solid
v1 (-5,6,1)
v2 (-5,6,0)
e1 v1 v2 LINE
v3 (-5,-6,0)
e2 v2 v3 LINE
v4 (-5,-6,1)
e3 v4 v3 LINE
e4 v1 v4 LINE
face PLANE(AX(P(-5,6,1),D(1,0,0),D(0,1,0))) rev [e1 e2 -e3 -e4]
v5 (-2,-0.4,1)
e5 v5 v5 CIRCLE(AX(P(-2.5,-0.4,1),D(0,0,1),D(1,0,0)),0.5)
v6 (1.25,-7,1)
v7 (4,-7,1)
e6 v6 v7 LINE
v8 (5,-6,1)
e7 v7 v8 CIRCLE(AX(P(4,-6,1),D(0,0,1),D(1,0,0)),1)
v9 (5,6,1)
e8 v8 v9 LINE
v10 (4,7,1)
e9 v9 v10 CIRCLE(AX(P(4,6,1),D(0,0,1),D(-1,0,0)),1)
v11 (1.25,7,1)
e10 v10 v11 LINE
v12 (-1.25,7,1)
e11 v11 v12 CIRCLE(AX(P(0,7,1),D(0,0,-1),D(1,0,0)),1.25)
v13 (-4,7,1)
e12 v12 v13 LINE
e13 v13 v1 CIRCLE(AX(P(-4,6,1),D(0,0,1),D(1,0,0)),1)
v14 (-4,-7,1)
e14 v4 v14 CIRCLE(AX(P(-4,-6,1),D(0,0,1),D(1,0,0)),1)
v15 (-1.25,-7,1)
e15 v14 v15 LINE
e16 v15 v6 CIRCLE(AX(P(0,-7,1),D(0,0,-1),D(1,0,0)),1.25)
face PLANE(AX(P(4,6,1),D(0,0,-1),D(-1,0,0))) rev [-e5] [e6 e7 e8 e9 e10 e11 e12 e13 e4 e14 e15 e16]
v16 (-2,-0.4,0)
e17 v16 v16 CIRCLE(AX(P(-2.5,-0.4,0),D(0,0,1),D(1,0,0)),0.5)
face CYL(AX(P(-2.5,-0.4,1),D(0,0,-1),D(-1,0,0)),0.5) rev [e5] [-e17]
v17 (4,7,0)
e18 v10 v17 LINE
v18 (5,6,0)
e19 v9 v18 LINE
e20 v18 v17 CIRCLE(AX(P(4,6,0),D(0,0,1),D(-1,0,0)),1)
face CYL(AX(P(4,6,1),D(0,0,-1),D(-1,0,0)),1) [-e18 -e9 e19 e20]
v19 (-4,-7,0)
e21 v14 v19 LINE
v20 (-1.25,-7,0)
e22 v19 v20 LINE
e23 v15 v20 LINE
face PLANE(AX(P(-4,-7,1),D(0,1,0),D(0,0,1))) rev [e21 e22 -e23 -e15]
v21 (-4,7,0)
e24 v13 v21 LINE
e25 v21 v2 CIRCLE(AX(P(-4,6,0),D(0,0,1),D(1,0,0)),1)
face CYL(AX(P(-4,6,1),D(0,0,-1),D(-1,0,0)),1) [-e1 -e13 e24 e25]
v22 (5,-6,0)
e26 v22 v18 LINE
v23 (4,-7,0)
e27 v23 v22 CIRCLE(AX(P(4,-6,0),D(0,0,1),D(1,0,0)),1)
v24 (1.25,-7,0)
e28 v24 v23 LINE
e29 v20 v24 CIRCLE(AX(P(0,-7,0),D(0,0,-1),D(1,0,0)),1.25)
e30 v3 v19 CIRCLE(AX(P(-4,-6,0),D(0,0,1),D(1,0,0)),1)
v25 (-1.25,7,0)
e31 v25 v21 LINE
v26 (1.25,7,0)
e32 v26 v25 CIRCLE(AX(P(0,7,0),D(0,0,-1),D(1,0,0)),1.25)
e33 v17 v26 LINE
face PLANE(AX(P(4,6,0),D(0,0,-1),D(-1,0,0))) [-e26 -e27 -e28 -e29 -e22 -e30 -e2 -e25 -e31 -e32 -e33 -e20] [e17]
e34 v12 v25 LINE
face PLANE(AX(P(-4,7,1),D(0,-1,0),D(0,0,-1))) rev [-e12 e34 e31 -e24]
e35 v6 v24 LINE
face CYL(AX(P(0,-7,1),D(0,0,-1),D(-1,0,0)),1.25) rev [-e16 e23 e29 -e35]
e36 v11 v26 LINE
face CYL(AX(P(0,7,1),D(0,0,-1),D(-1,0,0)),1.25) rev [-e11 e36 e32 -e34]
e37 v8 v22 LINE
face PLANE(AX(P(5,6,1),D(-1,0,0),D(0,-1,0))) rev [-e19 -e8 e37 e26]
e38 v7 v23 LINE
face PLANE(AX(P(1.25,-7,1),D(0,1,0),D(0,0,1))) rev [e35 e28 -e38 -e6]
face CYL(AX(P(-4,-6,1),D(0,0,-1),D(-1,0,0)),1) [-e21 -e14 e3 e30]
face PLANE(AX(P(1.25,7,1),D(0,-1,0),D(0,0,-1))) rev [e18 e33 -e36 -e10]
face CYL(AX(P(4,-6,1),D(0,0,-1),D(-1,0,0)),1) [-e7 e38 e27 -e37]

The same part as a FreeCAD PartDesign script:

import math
import FreeCAD as App
import Part
import Sketcher

doc = App.newDocument("Part")
params = doc.addObject("Spreadsheet::Sheet", "Params")
for row, (alias, value) in enumerate([
    ("sketch1_diameter", "1 mm"),
    ("sketch1_radius", "1 mm"),
    ("sketch1_height", "12 mm"),
    ("sketch1_radius2", "1.25 mm"),
    ("pad1_length", "1 mm"),
], start=1):
    params.set(f"A{row}", alias)
    params.set(f"B{row}", "=" + value)
    params.setAlias(f"B{row}", alias)

body = doc.addObject("PartDesign::Body", "Body")

# Sketch on XY plane
sketch1 = body.newObject("Sketcher::SketchObject", "Sketch")
sketch1.AttachmentSupport = (doc.getObject("XY_Plane"), [""])
sketch1.MapMode = "FlatFace"
sketch1.addGeometry([
    Part.LineSegment(App.Vector(4, 7, 0), App.Vector(1.2, 7, 0)),  # 0
    Part.ArcOfCircle(Part.Circle(App.Vector(0, 7, 0), App.Vector(0, 0, 1), 1.2), math.radians(180), math.radians(360)),  # 1
    Part.LineSegment(App.Vector(-1.2, 7, 0), App.Vector(-4, 7, 0)),  # 2
    Part.ArcOfCircle(Part.Circle(App.Vector(-4, 6, 0), App.Vector(0, 0, 1), 1), math.radians(90), math.radians(180)),  # 3
    Part.LineSegment(App.Vector(-5, 6, 0), App.Vector(-5, -6, 0)),  # 4
    Part.ArcOfCircle(Part.Circle(App.Vector(-4, -6, 0), App.Vector(0, 0, 1), 1), math.radians(-180), math.radians(-90)),  # 5
    Part.LineSegment(App.Vector(-4, -7, 0), App.Vector(-1.2, -7, 0)),  # 6
    Part.ArcOfCircle(Part.Circle(App.Vector(0, -7, 0), App.Vector(0, 0, 1), 1.2), math.radians(0), math.radians(180)),  # 7
    Part.LineSegment(App.Vector(1.2, -7, 0), App.Vector(4, -7, 0)),  # 8
    Part.ArcOfCircle(Part.Circle(App.Vector(4, -6, 0), App.Vector(0, 0, 1), 1), math.radians(-90), math.radians(0)),  # 9
    Part.LineSegment(App.Vector(5, -6, 0), App.Vector(5, 6, 0)),  # 10
    Part.ArcOfCircle(Part.Circle(App.Vector(4, 6, 0), App.Vector(0, 0, 1), 1), math.radians(0), math.radians(90)),  # 11
    Part.Circle(App.Vector(-2.5, -0.4, 0), App.Vector(0, 0, 1), 0.5),  # 12
], False)
sketch1.addConstraint([
    Sketcher.Constraint("Coincident", 0, 2, 1, 2),
    Sketcher.Constraint("Coincident", 1, 1, 2, 1),
    Sketcher.Constraint("Tangent", 2, 2, 3, 1),
    Sketcher.Constraint("Tangent", 3, 2, 4, 1),
    Sketcher.Constraint("Tangent", 4, 2, 5, 1),
    Sketcher.Constraint("Tangent", 5, 2, 6, 1),
    Sketcher.Constraint("Coincident", 6, 2, 7, 2),
    Sketcher.Constraint("Coincident", 7, 1, 8, 1),
    Sketcher.Constraint("Tangent", 8, 2, 9, 1),
    Sketcher.Constraint("Tangent", 9, 2, 10, 1),
    Sketcher.Constraint("Tangent", 10, 2, 11, 1),
    Sketcher.Constraint("Tangent", 11, 2, 0, 1),
    Sketcher.Constraint("Horizontal", 0),
    Sketcher.Constraint("Horizontal", 2),
    Sketcher.Constraint("Vertical", 4),
    Sketcher.Constraint("Horizontal", 6),
    Sketcher.Constraint("Horizontal", 8),
    Sketcher.Constraint("Vertical", 10),
    Sketcher.Constraint("Equal", 3, 5),
    Sketcher.Constraint("Equal", 1, 7),
    Sketcher.Constraint("Equal", 5, 9),
    Sketcher.Constraint("Equal", 9, 11),
    Sketcher.Constraint("Symmetric", 1, 3, 7, 3, -1, 1),
    Sketcher.Constraint("Symmetric", 3, 3, 9, 3, -1, 1),
    Sketcher.Constraint("Symmetric", 0, 2, 1, 1, -2),
    Sketcher.Constraint("Horizontal", 5, 3, 9, 3),
    Sketcher.Constraint("Horizontal", 1, 3, 0, 2),
    Sketcher.Constraint("Diameter", 12, 1.0),
    Sketcher.Constraint("Radius", 3, 1.0),
    Sketcher.Constraint("DistanceY", 4, 2, 4, 1, 12.0),
    Sketcher.Constraint("Radius", 1, 1.25),
    Sketcher.Constraint("DistanceX", 3, 3, -1, 1, 4.0),
    Sketcher.Constraint("DistanceX", 12, 3, -1, 1, 2.5),
    Sketcher.Constraint("DistanceY", 12, 3, -1, 1, 0.4),
])
sketch1.setExpression("Constraints[27]", "Params.sketch1_diameter")
sketch1.setExpression("Constraints[28]", "Params.sketch1_radius")
sketch1.setExpression("Constraints[29]", "Params.sketch1_height")
sketch1.setExpression("Constraints[30]", "Params.sketch1_radius2")
pad1 = body.newObject("PartDesign::Pad", "Pad")
pad1.Profile = sketch1
pad1.setExpression("Length", "Params.pad1_length")

doc.recompute()
